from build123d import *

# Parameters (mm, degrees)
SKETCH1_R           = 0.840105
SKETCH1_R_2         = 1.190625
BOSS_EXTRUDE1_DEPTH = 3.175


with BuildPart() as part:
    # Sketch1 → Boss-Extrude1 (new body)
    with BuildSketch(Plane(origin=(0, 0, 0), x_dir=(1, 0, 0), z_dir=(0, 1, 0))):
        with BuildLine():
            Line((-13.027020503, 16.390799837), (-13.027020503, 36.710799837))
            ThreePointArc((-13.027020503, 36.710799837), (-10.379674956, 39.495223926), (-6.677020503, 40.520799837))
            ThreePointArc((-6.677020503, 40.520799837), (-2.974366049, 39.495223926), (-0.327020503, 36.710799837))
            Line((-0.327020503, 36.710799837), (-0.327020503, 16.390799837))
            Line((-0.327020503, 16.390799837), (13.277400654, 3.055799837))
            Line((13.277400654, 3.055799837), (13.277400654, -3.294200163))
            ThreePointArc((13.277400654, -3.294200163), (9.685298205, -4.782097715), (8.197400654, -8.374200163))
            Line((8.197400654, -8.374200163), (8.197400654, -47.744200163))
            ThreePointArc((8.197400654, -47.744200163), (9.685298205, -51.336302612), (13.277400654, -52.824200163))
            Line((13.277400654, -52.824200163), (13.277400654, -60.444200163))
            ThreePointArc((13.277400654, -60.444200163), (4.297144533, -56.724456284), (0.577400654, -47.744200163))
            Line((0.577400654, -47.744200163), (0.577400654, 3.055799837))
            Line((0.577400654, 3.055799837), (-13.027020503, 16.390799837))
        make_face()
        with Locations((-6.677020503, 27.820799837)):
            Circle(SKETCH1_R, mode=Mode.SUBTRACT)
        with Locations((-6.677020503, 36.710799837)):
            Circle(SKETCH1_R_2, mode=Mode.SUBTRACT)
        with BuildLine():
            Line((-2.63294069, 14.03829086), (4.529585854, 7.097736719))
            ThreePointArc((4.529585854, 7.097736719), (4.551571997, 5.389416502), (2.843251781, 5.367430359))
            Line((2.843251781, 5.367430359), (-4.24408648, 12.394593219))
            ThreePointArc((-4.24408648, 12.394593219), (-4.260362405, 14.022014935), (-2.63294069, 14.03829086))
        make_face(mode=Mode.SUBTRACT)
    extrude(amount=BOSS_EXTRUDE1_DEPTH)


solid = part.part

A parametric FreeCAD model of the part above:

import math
import FreeCAD as App
import Part
import Sketcher
Q = App.Units.Quantity

doc = App.newDocument("Part")
body = doc.addObject("PartDesign::Body", "Body")

# Sketch on XZ plane
sketch1 = doc.addObject("Sketcher::SketchObject", "Sketch")
body.addObject(sketch1)
sketch1.AttachmentSupport = (doc.XZ_Plane, [""])
sketch1.MapMode = "FlatFace"
sketch1.addGeometry([
    Part.LineSegment(App.Vector(-13, -36.7, 0), App.Vector(-13, -16.4, 0)),  # 0
    Part.LineSegment(App.Vector(-13, -16.4, 0), App.Vector(0.6, -3.1, 0)),  # 1
    Part.LineSegment(App.Vector(0.6, -3.1, 0), App.Vector(0.6, 47.7, 0)),  # 2
    Part.ArcOfCircle(Part.Circle(App.Vector(13.3, 47.7, 0), App.Vector(0, 0, 1), 12.7), math.radians(90), math.radians(180)),  # 3
    Part.LineSegment(App.Vector(13.3, 60.4, 0), App.Vector(13.3, 52.8, 0)),  # 4
    Part.ArcOfCircle(Part.Circle(App.Vector(13.3, 47.7, 0), App.Vector(0, 0, 1), 5.1), math.radians(90), math.radians(180)),  # 5
    Part.LineSegment(App.Vector(8.2, 47.7, 0), App.Vector(8.2, 8.4, 0)),  # 6
    Part.ArcOfCircle(Part.Circle(App.Vector(13.3, 8.4, 0), App.Vector(0, 0, 1), 5.1), math.radians(180), math.radians(270)),  # 7
    Part.LineSegment(App.Vector(13.3, 3.3, 0), App.Vector(13.3, -3.1, 0)),  # 8
    Part.LineSegment(App.Vector(13.3, -3.1, 0), App.Vector(-0.3, -16.4, 0)),  # 9
    Part.LineSegment(App.Vector(-0.3, -16.4, 0), App.Vector(-0.3, -36.7, 0)),  # 10
    Part.ArcOfCircle(Part.Circle(App.Vector(-6.7, -33.3, 0), App.Vector(0, 0, 1), 7.2), math.radians(-90), math.radians(-28)),  # 11
    Part.ArcOfCircle(Part.Circle(App.Vector(-6.7, -33.3, 0), App.Vector(0, 0, 1), 7.2), math.radians(-152), math.radians(-90)),  # 12
    Part.LineSegment(App.Vector(-2.6, -14, 0), App.Vector(4.5, -7.1, 0)),  # 13
    Part.ArcOfCircle(Part.Circle(App.Vector(3.7, -6.2, 0), App.Vector(0, 0, 1), 1.2), math.radians(-46), math.radians(134)),  # 14
    Part.LineSegment(App.Vector(2.8, -5.4, 0), App.Vector(-4.2, -12.4, 0)),  # 15
    Part.ArcOfCircle(Part.Circle(App.Vector(-3.4, -13.2, 0), App.Vector(0, 0, 1), 1.2), math.radians(134), math.radians(314)),  # 16
    Part.Circle(App.Vector(-6.7, -27.8, 0), App.Vector(0, 0, 1), 0.8),  # 17
    Part.Circle(App.Vector(-6.7, -36.7, 0), App.Vector(0, 0, 1), 1.2),  # 18
], False)
sketch1.addConstraint([
    Sketcher.Constraint("Coincident", 0, 2, 1, 1),
    Sketcher.Constraint("Coincident", 1, 2, 2, 1),
    Sketcher.Constraint("Tangent", 2, 2, 3, 2),
    Sketcher.Constraint("Coincident", 3, 1, 4, 1),
    Sketcher.Constraint("Coincident", 4, 2, 5, 1),
    Sketcher.Constraint("Tangent", 5, 2, 6, 1),
    Sketcher.Constraint("Tangent", 6, 2, 7, 1),
    Sketcher.Constraint("Coincident", 7, 2, 8, 1),
    Sketcher.Constraint("Coincident", 8, 2, 9, 1),
    Sketcher.Constraint("Coincident", 9, 2, 10, 1),
    Sketcher.Constraint("Coincident", 10, 2, 11, 2),
    Sketcher.Constraint("Tangent", 11, 1, 12, 2),
    Sketcher.Constraint("Coincident", 12, 1, 0, 1),
    Sketcher.Constraint("Coincident", 13, 2, 14, 1),
    Sketcher.Constraint("Coincident", 14, 2, 15, 1),
    Sketcher.Constraint("Coincident", 15, 2, 16, 1),
    Sketcher.Constraint("Coincident", 16, 2, 13, 1),
    Sketcher.Constraint("Vertical", 0),
    Sketcher.Constraint("Vertical", 2),
    Sketcher.Constraint("Vertical", 4),
    Sketcher.Constraint("Vertical", 6),
    Sketcher.Constraint("Vertical", 8),
    Sketcher.Constraint("Vertical", 10),
    Sketcher.Constraint("Coincident", 5, 3, 3, 3),
    Sketcher.Constraint("Equal", 5, 7),
    Sketcher.Constraint("Equal", 11, 12),
    Sketcher.Constraint("Parallel", 1, 9),
    Sketcher.Constraint("Horizontal", 1, 2, 8, 2),
    Sketcher.Constraint("Horizontal", 0, 2, 9, 2),
    Sketcher.Constraint("Horizontal", 18, 3, 10, 2),
    Sketcher.Constraint("Horizontal", 10, 2, 12, 1),
    Sketcher.Constraint("Vertical", 12, 3, 17, 3),
    Sketcher.Constraint("Vertical", 17, 3, 18, 3),
    Sketcher.Constraint("Vertical", 7, 3, 3, 1),
    Sketcher.Constraint("Vertical", 4, 2, 7, 2),
    Sketcher.Constraint("Vertical", 18, 3, 11, 1),
    Sketcher.Constraint("Radius", 3, Q("0.5 in")),
    Sketcher.Constraint("Radius", 5, Q("0.2 in")),
    Sketcher.Constraint("DistanceY", 2, 1, 2, 2, Q("2 in")),
    Sketcher.Constraint("Diameter", 18, Q("0.09375 in")),
    Sketcher.Constraint("DistanceY", 0, 1, 0, 2, Q("0.8 in")),
    Sketcher.Constraint("DistanceY", 6, 2, 6, 1, Q("1.55 in")),
    Sketcher.Constraint("DistanceY", 11, 1, 17, 3, Q("0.5 in")),
    Sketcher.Constraint("Distance", 1, Q("0.75 in")),
    Sketcher.Constraint("DistanceY", 18, 3, 17, 3, Q("0.35 in")),
    Sketcher.Constraint("Diameter", 17, 1.68021),
    Sketcher.Constraint("Radius", 16, 1.150818),
    Sketcher.Constraint("DistanceY", 17, 3, 7, 3, Q("1.425 in")),
    Sketcher.Constraint("Radius", 14, 1.208065),
    Sketcher.Constraint("DistanceX", -1, 1, 3, 3, 13.277401),
    Sketcher.Constraint("DistanceY", -1, 1, 3, 3, 47.7442),
    Sketcher.Constraint("DistanceX", 16, 3, 13, 2, 7.968099),
    Sketcher.Constraint("Distance", 13, 9.973619),
    Sketcher.Constraint("Distance", 15, 9.98055),
    Sketcher.Constraint("DistanceX", -1, 1, 14, 3, 3.686419),
    Sketcher.Constraint("DistanceX", -1, 1, 14, 2, 2.843252),
    Sketcher.Constraint("DistanceY", 14, 2, -1, 1, 5.36743),
    Sketcher.Constraint("DistanceX", 16, 2, -1, 1, 2.632941),
    Sketcher.Constraint("DistanceY", 16, 2, -1, 1, 14.038291),
])
pad1 = doc.addObject("PartDesign::Pad", "Pad")
body.addObject(pad1)
pad1.Profile = sketch1
pad1.Length = Q("0.125 in")
pad1.Reversed = True

doc.recompute()
